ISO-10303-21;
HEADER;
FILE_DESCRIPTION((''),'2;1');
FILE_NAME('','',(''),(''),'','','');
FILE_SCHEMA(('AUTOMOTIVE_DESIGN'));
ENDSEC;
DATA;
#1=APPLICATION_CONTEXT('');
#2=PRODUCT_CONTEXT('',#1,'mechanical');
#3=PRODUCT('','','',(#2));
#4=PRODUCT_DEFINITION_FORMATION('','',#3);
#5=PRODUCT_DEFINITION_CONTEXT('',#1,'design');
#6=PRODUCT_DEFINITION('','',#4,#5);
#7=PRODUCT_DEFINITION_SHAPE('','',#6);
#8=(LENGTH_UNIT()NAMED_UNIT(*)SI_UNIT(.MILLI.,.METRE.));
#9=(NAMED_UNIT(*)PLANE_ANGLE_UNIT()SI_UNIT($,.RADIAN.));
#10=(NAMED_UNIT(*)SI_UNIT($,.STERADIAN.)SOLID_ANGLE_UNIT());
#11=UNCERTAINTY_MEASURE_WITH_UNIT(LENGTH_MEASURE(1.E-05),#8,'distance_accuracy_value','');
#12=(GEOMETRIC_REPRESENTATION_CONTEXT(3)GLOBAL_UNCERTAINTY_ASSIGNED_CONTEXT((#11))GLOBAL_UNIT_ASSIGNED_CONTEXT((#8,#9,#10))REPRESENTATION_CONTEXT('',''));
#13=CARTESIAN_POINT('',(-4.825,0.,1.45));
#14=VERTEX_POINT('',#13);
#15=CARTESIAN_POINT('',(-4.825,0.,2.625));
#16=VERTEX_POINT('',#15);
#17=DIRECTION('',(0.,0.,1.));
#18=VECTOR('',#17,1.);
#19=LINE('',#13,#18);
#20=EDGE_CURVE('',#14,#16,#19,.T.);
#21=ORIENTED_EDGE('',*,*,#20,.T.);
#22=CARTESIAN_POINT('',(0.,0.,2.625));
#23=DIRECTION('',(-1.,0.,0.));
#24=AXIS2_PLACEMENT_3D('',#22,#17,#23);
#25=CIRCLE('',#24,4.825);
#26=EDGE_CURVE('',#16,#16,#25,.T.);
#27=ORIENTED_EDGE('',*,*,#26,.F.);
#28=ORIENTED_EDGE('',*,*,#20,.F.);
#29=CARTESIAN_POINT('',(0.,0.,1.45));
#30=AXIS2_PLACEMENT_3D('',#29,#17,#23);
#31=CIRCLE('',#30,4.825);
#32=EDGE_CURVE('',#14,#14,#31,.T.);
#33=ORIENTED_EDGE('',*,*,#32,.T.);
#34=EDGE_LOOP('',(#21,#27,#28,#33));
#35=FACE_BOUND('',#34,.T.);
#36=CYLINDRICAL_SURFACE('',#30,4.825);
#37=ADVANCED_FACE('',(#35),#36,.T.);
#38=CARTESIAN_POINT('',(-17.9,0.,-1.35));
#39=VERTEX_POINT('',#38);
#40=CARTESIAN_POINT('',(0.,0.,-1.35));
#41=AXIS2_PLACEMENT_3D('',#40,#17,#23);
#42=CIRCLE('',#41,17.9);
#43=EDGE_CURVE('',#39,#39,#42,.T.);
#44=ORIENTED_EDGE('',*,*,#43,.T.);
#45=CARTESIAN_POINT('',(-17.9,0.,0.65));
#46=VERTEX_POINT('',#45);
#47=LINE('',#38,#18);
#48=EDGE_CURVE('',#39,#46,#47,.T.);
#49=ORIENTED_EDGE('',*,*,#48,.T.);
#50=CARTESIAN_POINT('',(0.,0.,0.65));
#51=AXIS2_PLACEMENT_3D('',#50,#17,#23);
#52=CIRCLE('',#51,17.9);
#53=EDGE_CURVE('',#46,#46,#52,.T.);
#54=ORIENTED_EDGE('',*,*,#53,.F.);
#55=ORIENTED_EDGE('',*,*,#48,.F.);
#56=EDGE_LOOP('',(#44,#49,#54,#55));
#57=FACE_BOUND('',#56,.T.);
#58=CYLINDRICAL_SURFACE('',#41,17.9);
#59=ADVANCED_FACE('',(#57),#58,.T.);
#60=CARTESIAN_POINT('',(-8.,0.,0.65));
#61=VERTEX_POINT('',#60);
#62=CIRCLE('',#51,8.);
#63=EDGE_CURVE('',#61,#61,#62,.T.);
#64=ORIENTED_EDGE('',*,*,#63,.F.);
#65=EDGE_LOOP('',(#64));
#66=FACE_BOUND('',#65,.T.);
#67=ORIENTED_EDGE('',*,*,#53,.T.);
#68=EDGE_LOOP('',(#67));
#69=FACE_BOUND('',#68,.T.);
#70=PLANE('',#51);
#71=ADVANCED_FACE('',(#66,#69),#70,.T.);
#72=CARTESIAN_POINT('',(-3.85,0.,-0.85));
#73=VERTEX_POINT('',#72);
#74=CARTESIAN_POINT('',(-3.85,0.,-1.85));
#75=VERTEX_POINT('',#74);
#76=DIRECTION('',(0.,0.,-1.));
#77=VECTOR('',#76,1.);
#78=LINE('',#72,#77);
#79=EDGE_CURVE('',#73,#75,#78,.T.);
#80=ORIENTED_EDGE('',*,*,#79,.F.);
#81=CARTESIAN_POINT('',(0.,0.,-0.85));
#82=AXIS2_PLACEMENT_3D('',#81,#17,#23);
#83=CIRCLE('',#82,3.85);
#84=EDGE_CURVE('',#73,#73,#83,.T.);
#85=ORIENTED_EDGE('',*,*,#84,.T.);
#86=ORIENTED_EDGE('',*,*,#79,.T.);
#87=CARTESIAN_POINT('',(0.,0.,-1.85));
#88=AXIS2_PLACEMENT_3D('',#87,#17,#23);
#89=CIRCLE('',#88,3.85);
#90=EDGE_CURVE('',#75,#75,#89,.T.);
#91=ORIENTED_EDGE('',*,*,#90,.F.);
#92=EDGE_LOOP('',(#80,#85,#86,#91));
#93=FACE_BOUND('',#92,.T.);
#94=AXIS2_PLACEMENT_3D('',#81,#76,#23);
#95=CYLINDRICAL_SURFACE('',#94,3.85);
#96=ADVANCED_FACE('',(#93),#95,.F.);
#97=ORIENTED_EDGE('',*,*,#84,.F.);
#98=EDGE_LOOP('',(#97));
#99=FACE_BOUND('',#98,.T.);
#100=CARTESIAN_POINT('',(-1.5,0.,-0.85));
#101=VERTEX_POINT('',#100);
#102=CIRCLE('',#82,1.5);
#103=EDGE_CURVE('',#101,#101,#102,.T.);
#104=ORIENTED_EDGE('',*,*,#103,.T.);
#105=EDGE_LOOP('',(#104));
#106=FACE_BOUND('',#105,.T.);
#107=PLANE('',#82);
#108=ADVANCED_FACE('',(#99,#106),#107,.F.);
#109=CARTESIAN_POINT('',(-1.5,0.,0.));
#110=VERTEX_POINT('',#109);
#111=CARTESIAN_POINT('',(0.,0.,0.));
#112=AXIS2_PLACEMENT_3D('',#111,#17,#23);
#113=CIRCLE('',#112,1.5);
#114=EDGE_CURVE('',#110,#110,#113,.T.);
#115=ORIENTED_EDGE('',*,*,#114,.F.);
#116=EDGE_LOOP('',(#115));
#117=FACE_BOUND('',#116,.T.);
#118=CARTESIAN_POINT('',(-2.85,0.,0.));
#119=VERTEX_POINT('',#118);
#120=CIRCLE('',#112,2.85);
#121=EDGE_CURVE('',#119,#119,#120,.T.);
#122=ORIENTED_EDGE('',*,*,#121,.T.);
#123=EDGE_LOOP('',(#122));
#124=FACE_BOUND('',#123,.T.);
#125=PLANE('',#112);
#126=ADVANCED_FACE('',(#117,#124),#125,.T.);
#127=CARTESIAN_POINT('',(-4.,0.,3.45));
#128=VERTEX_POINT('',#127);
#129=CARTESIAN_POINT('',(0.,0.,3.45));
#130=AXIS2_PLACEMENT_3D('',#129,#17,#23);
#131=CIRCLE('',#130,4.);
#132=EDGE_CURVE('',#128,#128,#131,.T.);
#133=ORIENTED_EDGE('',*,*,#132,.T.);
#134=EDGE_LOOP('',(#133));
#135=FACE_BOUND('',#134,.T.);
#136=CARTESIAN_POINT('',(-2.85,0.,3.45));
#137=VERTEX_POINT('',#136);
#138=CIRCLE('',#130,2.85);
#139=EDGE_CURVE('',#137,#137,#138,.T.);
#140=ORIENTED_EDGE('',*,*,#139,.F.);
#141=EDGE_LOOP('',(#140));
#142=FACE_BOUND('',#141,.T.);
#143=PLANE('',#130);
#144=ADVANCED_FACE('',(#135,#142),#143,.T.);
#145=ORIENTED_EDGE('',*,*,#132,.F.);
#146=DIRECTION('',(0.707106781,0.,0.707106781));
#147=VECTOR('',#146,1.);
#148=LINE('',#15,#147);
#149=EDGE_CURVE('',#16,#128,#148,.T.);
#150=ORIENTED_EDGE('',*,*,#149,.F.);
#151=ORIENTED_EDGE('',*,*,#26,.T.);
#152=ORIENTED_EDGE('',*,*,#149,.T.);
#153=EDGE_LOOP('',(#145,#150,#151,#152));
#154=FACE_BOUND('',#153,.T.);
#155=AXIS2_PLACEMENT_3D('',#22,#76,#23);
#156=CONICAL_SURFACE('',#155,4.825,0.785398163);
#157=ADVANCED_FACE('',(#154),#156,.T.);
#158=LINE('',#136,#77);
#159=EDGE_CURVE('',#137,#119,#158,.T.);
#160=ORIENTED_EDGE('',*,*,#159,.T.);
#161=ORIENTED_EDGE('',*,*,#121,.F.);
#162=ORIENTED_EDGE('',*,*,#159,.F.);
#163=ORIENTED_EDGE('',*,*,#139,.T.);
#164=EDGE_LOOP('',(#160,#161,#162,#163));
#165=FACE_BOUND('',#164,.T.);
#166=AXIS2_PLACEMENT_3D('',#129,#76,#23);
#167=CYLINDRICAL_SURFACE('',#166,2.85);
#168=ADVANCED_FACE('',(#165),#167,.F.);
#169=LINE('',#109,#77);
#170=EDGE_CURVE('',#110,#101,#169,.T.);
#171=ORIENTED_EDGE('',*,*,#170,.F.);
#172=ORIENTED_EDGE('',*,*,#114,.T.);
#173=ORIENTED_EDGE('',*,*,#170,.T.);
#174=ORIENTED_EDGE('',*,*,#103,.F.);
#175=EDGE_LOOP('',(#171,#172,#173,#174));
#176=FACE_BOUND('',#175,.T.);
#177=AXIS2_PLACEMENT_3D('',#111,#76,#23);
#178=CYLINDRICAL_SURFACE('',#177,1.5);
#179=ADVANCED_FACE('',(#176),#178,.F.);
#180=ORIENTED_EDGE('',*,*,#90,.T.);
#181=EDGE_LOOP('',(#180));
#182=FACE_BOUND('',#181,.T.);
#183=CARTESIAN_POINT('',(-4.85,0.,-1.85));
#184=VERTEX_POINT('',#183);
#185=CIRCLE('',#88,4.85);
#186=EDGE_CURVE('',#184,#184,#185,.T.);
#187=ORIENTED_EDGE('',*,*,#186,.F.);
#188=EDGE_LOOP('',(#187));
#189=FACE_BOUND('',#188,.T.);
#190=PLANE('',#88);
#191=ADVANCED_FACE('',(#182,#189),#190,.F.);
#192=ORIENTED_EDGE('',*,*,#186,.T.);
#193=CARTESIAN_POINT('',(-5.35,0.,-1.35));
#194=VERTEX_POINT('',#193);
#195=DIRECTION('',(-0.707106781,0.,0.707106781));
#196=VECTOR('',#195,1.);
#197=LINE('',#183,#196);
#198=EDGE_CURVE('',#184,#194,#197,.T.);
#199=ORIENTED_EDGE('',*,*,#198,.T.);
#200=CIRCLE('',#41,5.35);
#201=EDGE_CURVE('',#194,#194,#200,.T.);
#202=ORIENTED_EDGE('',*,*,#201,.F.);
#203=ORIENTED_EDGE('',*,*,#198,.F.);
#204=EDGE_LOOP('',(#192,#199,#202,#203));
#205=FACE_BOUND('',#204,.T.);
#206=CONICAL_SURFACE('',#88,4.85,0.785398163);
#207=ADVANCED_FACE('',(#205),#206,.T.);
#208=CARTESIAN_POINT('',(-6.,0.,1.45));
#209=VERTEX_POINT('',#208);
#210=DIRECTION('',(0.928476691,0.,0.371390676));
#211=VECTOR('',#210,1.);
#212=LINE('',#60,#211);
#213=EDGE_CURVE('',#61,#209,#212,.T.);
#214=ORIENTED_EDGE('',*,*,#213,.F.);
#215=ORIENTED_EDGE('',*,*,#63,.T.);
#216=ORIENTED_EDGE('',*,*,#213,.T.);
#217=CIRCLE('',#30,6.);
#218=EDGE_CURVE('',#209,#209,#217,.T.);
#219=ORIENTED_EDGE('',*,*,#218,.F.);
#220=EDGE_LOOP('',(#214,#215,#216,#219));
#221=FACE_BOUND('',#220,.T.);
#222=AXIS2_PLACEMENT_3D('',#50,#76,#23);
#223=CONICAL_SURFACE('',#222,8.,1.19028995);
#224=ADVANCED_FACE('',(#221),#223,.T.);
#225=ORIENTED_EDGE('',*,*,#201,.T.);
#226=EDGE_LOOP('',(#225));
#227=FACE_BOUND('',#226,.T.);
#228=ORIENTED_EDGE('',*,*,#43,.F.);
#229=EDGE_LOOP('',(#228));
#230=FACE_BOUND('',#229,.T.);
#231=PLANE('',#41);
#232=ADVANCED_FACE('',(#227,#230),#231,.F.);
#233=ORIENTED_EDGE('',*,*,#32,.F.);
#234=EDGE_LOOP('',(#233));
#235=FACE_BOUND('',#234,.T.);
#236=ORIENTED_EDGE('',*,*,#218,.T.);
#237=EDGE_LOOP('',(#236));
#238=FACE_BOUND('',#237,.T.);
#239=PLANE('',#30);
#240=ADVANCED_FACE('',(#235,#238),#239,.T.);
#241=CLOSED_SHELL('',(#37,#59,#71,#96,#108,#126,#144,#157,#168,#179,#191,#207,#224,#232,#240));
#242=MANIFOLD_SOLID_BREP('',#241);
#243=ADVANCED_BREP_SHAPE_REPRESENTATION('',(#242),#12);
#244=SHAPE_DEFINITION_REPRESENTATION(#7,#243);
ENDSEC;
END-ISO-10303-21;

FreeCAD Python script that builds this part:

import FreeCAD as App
import Part
import Sketcher

V = App.Vector
Q = App.Units.Quantity

doc = App.newDocument("Part")
body = doc.addObject("PartDesign::Body", "Body")

sketch1 = doc.addObject("Sketcher::SketchObject", "Sketch")
body.addObject(sketch1)
sketch1.AttachmentSupport = (doc.XZ_Plane, [""])
sketch1.MapMode = "FlatFace"
sketch1.addGeometry([
    Part.LineSegment(V(-1.5, -0.85, 0), V(-1.5, 0, 0)),
    Part.LineSegment(V(-1.5, 0, 0), V(-2.85, 0, 0)),
    Part.LineSegment(V(-2.85, 0, 0), V(-2.85, 3.45, 0)),
    Part.LineSegment(V(-2.85, 3.45, 0), V(-4, 3.45, 0)),
    Part.LineSegment(V(-4, 3.45, 0), V(-4.825, 2.625, 0)),
    Part.LineSegment(V(-4.825, 2.625, 0), V(-4.825, 1.45, 0)),
    Part.LineSegment(V(-4.825, 1.45, 0), V(-6, 1.45, 0)),
    Part.LineSegment(V(-6, 1.45, 0), V(-8, 0.65, 0)),
    Part.LineSegment(V(-8, 0.65, 0), V(-17.9, 0.65, 0)),
    Part.LineSegment(V(-17.9, 0.65, 0), V(-17.9, -1.35, 0)),
    Part.LineSegment(V(-17.9, -1.35, 0), V(-5.35, -1.35, 0)),
    Part.LineSegment(V(-5.35, -1.35, 0), V(-4.85, -1.85, 0)),
    Part.LineSegment(V(-4.85, -1.85, 0), V(-3.85, -1.85, 0)),
    Part.LineSegment(V(-3.85, -1.85, 0), V(-3.85, -0.85, 0)),
    Part.LineSegment(V(-3.85, -0.85, 0), V(-1.5, -0.85, 0)),
], False)
sketch1.addConstraint([
    Sketcher.Constraint("Coincident", 0, 2, 1, 1),
    Sketcher.Constraint("Coincident", 1, 2, 2, 1),
    Sketcher.Constraint("Coincident", 2, 2, 3, 1),
    Sketcher.Constraint("Coincident", 3, 2, 4, 1),
    Sketcher.Constraint("Coincident", 4, 2, 5, 1),
    Sketcher.Constraint("Coincident", 5, 2, 6, 1),
    Sketcher.Constraint("Coincident", 6, 2, 7, 1),
    Sketcher.Constraint("Coincident", 7, 2, 8, 1),
    Sketcher.Constraint("Coincident", 8, 2, 9, 1),
    Sketcher.Constraint("Coincident", 9, 2, 10, 1),
    Sketcher.Constraint("Coincident", 10, 2, 11, 1),
    Sketcher.Constraint("Coincident", 11, 2, 12, 1),
    Sketcher.Constraint("Coincident", 12, 2, 13, 1),
    Sketcher.Constraint("Coincident", 13, 2, 14, 1),
    Sketcher.Constraint("Coincident", 14, 2, 0, 1),
    Sketcher.Constraint("Vertical", 0),
    Sketcher.Constraint("Horizontal", 1),
    Sketcher.Constraint("Vertical", 2),
    Sketcher.Constraint("Horizontal", 3),
    Sketcher.Constraint("Vertical", 5),
    Sketcher.Constraint("Horizontal", 6),
    Sketcher.Constraint("Horizontal", 8),
    Sketcher.Constraint("Vertical", 9),
    Sketcher.Constraint("Horizontal", 10),
    Sketcher.Constraint("Horizontal", 12),
    Sketcher.Constraint("Vertical", 13),
    Sketcher.Constraint("Horizontal", 14),
    Sketcher.Constraint("PointOnObject", 0, 2, -1),
    Sketcher.Constraint("Perpendicular", 4, 11),
    Sketcher.Constraint("Equal", 6, 5),
    Sketcher.Constraint("Equal", 12, 13),
    Sketcher.Constraint("DistanceX", 12, 1, 12, 2, 1.0),
    Sketcher.Constraint("DistanceY", 9, 2, 9, 1, 2.0),
    Sketcher.Constraint("Angle", 4, Q("-135 deg")),
    Sketcher.Constraint("DistanceX", 8, 2, 8, 1, 9.9),
    Sketcher.Constraint("DistanceX", 3, 2, -1, 1, 4.0),
    Sketcher.Constraint("DistanceX", 6, 2, -1, 1, 6.0),
    Sketcher.Constraint("DistanceX", 7, 2, -1, 1, 8.0),
    Sketcher.Constraint("DistanceX", 11, 2, 1, 2, 2.0),
    Sketcher.Constraint("DistanceX", 1, 2, 1, 1, 1.35),
    Sketcher.Constraint("DistanceX", 3, 2, 3, 1, 1.15),
    Sketcher.Constraint("DistanceX", 10, 1, 10, 2, 12.55),
    Sketcher.Constraint("DistanceY", 0, 1, 0, 2, 0.85),
    Sketcher.Constraint("DistanceY", 2, 1, 2, 2, 3.45),
    Sketcher.Constraint("DistanceX", 6, 2, 6, 1, 1.175),
])
revolution = doc.addObject("PartDesign::Revolution", "Revolution")
body.addObject(revolution)
revolution.Profile = sketch1
revolution.ReferenceAxis = (sketch1, ["V_Axis"])
revolution.Angle = 360

doc.recompute()
